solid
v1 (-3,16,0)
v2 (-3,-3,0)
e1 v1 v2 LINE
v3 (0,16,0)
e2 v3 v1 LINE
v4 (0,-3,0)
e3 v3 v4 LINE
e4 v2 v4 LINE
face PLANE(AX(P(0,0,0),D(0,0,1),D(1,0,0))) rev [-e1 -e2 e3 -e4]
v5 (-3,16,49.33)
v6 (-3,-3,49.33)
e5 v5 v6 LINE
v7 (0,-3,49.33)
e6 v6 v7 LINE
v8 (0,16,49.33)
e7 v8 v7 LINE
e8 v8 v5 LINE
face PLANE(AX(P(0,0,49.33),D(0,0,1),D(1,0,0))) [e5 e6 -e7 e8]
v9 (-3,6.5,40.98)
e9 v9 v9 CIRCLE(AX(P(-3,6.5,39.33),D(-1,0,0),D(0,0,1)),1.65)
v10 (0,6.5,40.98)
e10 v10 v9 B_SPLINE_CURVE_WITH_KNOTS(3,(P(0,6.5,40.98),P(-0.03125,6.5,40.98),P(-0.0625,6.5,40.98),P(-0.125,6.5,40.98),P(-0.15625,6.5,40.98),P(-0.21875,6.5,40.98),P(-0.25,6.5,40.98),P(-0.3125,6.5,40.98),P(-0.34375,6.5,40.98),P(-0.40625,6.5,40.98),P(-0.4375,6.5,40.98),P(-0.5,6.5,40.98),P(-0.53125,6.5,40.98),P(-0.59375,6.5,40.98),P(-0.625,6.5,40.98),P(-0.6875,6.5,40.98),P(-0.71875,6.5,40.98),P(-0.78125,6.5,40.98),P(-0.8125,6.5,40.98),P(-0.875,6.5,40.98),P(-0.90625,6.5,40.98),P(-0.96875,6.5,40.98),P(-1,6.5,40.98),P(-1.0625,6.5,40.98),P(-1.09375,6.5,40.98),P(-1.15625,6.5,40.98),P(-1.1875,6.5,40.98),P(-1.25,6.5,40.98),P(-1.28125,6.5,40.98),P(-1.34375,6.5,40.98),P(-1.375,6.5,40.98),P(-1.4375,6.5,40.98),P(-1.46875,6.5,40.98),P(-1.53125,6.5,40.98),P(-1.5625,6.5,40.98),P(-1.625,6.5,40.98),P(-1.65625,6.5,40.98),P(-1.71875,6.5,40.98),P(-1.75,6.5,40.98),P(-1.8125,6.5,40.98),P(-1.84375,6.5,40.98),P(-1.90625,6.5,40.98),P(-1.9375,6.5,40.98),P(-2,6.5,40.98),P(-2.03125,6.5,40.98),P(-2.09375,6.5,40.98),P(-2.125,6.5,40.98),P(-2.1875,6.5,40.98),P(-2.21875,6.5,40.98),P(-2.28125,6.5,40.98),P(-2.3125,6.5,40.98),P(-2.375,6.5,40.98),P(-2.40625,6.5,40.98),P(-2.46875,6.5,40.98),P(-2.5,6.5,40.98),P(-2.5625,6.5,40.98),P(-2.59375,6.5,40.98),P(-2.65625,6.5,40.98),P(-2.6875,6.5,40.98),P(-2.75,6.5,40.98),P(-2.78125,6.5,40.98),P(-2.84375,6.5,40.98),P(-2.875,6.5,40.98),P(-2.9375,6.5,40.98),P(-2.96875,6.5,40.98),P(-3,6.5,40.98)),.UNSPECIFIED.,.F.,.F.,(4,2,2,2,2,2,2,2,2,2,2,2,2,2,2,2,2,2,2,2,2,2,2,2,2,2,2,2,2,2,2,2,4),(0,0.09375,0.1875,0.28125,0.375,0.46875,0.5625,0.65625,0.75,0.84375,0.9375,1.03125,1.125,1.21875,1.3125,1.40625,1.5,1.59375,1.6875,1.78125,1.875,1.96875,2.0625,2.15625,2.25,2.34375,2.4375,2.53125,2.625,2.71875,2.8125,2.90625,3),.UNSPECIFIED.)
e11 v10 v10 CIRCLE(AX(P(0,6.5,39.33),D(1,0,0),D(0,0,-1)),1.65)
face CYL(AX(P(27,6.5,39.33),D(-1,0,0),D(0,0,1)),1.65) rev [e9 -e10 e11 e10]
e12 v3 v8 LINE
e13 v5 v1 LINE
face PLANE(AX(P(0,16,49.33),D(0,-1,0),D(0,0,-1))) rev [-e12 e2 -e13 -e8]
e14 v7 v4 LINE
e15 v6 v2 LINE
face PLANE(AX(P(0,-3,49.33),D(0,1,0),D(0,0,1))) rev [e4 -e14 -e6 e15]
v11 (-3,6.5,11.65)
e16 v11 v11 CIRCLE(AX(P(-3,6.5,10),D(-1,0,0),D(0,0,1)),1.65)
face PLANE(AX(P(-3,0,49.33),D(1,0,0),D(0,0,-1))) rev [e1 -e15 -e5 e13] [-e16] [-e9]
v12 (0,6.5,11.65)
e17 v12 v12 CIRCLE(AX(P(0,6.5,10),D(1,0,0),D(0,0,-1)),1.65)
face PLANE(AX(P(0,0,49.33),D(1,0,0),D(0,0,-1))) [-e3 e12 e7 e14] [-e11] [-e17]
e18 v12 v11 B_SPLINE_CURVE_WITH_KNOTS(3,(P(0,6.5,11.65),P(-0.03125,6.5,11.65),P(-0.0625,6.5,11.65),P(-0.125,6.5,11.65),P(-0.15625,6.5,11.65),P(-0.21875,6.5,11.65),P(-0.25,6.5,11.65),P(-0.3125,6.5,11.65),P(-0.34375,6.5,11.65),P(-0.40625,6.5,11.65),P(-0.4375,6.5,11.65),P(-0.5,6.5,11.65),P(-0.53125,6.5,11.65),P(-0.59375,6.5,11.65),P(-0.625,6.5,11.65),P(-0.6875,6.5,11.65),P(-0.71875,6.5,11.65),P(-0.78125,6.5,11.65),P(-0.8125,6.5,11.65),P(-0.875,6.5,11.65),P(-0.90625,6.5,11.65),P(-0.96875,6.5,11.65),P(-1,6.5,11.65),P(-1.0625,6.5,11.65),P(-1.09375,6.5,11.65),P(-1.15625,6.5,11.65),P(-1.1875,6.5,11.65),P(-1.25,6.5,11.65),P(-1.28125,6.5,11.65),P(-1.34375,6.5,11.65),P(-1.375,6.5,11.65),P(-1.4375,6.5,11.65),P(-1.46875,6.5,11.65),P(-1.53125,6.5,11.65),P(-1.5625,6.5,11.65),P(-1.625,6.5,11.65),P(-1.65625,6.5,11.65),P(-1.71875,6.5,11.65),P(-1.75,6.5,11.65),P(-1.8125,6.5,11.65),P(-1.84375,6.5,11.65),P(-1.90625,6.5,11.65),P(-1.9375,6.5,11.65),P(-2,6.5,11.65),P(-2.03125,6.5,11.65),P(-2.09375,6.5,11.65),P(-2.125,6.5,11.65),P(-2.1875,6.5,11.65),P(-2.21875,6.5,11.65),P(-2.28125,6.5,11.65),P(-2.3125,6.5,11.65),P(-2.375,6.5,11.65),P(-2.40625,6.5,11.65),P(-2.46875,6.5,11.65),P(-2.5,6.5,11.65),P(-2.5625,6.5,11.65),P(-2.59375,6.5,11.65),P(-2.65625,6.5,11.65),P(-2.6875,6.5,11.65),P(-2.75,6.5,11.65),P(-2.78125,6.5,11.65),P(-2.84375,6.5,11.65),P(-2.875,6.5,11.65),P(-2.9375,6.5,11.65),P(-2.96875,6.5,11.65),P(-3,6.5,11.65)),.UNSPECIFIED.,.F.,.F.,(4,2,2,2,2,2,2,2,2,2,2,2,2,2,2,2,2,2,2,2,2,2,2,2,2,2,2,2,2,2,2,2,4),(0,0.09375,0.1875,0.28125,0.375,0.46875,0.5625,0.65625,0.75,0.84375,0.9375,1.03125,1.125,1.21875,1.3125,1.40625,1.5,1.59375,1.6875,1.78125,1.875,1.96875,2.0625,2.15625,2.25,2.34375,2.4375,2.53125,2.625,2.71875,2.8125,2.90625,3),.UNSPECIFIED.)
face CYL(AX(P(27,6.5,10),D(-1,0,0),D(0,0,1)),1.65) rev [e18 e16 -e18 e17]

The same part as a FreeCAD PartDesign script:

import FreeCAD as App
import Part
import Sketcher
from FreeCAD import Vector
Q = App.Units.Quantity


def add_polygon(sketch, points):
    """Adds a closed chain of lines whose ends are joined by coincident constraints."""
    first, n = sketch.GeometryCount, len(points)
    for a, b in zip(points, points[1:] + points[:1]):
        sketch.addGeometry(Part.LineSegment(App.Vector(*a, 0), App.Vector(*b, 0)), False)
    for i in range(n):
        sketch.addConstraint(Sketcher.Constraint("Coincident", first + i, 2, first + (i + 1) % n, 1))

doc = App.newDocument("Part")
params = doc.addObject("Spreadsheet::Sheet", "Params")
for row, (alias, value) in enumerate([
    ("sketch1_width", "19 mm"),
    ("sketch1_width2", "13 mm"),
    ("pad1_length", "49.33 mm"),
    ("sketch2_diameter", "3.3 mm"),
    ("pocket1_length", "30 mm"),
    ("sketch3_width", "19 mm"),
    ("sketch3_height", "49.33 mm"),
    ("pocket2_length", "16 mm"),
], start=1):
    params.set(f"A{row}", alias)
    params.set(f"B{row}", "=" + value)
    params.setAlias(f"B{row}", alias)

body = doc.addObject("PartDesign::Body", "Body")

# Sketch on XY plane
sketch1 = body.newObject("Sketcher::SketchObject", "Sketch")
sketch1.AttachmentSupport = (doc.getObject("XY_Plane"), [""])
sketch1.MapMode = "FlatFace"
add_polygon(sketch1, [(-3, 16), (-3, -3), (16, -3), (16, 16)])  # lines 0-3
add_polygon(sketch1, [(13, 0), (0, 0), (0, 13), (13, 13)])  # lines 4-7
sketch1.addConstraint([
    Sketcher.Constraint("Vertical", 0),
    Sketcher.Constraint("Horizontal", 1),
    Sketcher.Constraint("Vertical", 2),
    Sketcher.Constraint("Horizontal", 3),
    Sketcher.Constraint("Horizontal", 4),
    Sketcher.Constraint("Vertical", 5),
    Sketcher.Constraint("Horizontal", 6),
    Sketcher.Constraint("Vertical", 7),
    Sketcher.Constraint("Coincident", 4, 2, -1, 1),
    Sketcher.Constraint("Equal", 3, 0),
    Sketcher.Constraint("Equal", 6, 5),
    Sketcher.Constraint("DistanceX", 1, 1, 1, 2, Q("19 mm")),
    Sketcher.Constraint("DistanceX", 4, 2, 4, 1, Q("13 mm")),
    Sketcher.Constraint("DistanceX", 0, 2, -1, 1, Q("3 mm")),
    Sketcher.Constraint("DistanceY", 0, 2, -1, 1, Q("3 mm")),
])
sketch1.setExpression("Constraints[19]", "Params.sketch1_width")
sketch1.setExpression("Constraints[20]", "Params.sketch1_width2")
pad1 = body.newObject("PartDesign::Pad", "Pad")
pad1.Profile = sketch1
pad1.setExpression("Length", "Params.pad1_length")

# Sketch on YZ plane
sketch2 = body.newObject("Sketcher::SketchObject", "Sketch001")
sketch2.AttachmentSupport = (doc.getObject("YZ_Plane"), [""])
sketch2.MapMode = "FlatFace"
sketch2.AttachmentOffset = App.Placement(Vector(0, 0, -3), App.Rotation())
sketch2.addGeometry([
    Part.Circle(Vector(6.5, 10, 0), Vector(0, 0, 1), 1.65),
    Part.Circle(Vector(6.5, 39.33, 0), Vector(0, 0, 1), 1.65),
], False)
sketch2.addConstraint([
    Sketcher.Constraint("Equal", 0, 1),
    Sketcher.Constraint("Vertical", 0, 3, 1, 3),
    Sketcher.Constraint("Diameter", 0, Q("3.3 mm")),
    Sketcher.Constraint("DistanceY", -1, 1, 0, 3, Q("10 mm")),
    Sketcher.Constraint("DistanceX", -1, 1, 0, 3, Q("6.5 mm")),
    Sketcher.Constraint("DistanceY", -1, 1, 1, 3, Q("39.33 mm")),
])
sketch2.setExpression("Constraints[2]", "Params.sketch2_diameter")
pocket1 = body.newObject("PartDesign::Pocket", "Pocket")
pocket1.Profile = sketch2
pocket1.setExpression("Length", "Params.pocket1_length")
pocket1.Reversed = True

# Sketch on YZ plane
sketch3 = body.newObject("Sketcher::SketchObject", "Sketch002")
sketch3.AttachmentSupport = (doc.getObject("YZ_Plane"), [""])
sketch3.MapMode = "FlatFace"
sketch3.AttachmentOffset = App.Placement(Vector(0, 0, 16), App.Rotation())
add_polygon(sketch3, [(16, 49.33), (-3, 49.33), (-3, 0), (16, 0)])  # lines 0-3
sketch3.addConstraint([
    Sketcher.Constraint("Horizontal", 0),
    Sketcher.Constraint("Vertical", 1),
    Sketcher.Constraint("Horizontal", 2),
    Sketcher.Constraint("Vertical", 3),
    Sketcher.Constraint("PointOnObject", 1, 2, -1),
    Sketcher.Constraint("DistanceX", 0, 2, 0, 1, Q("19 mm")),
    Sketcher.Constraint("DistanceX", 0, 2, -1, 1, Q("3 mm")),
    Sketcher.Constraint("DistanceY", 1, 2, 1, 1, Q("49.33 mm")),
])
sketch3.setExpression("Constraints[9]", "Params.sketch3_width")
sketch3.setExpression("Constraints[11]", "Params.sketch3_height")
pocket2 = body.newObject("PartDesign::Pocket", "Pocket001")
pocket2.Profile = sketch3
pocket2.setExpression("Length", "Params.pocket2_length")

doc.recompute()
